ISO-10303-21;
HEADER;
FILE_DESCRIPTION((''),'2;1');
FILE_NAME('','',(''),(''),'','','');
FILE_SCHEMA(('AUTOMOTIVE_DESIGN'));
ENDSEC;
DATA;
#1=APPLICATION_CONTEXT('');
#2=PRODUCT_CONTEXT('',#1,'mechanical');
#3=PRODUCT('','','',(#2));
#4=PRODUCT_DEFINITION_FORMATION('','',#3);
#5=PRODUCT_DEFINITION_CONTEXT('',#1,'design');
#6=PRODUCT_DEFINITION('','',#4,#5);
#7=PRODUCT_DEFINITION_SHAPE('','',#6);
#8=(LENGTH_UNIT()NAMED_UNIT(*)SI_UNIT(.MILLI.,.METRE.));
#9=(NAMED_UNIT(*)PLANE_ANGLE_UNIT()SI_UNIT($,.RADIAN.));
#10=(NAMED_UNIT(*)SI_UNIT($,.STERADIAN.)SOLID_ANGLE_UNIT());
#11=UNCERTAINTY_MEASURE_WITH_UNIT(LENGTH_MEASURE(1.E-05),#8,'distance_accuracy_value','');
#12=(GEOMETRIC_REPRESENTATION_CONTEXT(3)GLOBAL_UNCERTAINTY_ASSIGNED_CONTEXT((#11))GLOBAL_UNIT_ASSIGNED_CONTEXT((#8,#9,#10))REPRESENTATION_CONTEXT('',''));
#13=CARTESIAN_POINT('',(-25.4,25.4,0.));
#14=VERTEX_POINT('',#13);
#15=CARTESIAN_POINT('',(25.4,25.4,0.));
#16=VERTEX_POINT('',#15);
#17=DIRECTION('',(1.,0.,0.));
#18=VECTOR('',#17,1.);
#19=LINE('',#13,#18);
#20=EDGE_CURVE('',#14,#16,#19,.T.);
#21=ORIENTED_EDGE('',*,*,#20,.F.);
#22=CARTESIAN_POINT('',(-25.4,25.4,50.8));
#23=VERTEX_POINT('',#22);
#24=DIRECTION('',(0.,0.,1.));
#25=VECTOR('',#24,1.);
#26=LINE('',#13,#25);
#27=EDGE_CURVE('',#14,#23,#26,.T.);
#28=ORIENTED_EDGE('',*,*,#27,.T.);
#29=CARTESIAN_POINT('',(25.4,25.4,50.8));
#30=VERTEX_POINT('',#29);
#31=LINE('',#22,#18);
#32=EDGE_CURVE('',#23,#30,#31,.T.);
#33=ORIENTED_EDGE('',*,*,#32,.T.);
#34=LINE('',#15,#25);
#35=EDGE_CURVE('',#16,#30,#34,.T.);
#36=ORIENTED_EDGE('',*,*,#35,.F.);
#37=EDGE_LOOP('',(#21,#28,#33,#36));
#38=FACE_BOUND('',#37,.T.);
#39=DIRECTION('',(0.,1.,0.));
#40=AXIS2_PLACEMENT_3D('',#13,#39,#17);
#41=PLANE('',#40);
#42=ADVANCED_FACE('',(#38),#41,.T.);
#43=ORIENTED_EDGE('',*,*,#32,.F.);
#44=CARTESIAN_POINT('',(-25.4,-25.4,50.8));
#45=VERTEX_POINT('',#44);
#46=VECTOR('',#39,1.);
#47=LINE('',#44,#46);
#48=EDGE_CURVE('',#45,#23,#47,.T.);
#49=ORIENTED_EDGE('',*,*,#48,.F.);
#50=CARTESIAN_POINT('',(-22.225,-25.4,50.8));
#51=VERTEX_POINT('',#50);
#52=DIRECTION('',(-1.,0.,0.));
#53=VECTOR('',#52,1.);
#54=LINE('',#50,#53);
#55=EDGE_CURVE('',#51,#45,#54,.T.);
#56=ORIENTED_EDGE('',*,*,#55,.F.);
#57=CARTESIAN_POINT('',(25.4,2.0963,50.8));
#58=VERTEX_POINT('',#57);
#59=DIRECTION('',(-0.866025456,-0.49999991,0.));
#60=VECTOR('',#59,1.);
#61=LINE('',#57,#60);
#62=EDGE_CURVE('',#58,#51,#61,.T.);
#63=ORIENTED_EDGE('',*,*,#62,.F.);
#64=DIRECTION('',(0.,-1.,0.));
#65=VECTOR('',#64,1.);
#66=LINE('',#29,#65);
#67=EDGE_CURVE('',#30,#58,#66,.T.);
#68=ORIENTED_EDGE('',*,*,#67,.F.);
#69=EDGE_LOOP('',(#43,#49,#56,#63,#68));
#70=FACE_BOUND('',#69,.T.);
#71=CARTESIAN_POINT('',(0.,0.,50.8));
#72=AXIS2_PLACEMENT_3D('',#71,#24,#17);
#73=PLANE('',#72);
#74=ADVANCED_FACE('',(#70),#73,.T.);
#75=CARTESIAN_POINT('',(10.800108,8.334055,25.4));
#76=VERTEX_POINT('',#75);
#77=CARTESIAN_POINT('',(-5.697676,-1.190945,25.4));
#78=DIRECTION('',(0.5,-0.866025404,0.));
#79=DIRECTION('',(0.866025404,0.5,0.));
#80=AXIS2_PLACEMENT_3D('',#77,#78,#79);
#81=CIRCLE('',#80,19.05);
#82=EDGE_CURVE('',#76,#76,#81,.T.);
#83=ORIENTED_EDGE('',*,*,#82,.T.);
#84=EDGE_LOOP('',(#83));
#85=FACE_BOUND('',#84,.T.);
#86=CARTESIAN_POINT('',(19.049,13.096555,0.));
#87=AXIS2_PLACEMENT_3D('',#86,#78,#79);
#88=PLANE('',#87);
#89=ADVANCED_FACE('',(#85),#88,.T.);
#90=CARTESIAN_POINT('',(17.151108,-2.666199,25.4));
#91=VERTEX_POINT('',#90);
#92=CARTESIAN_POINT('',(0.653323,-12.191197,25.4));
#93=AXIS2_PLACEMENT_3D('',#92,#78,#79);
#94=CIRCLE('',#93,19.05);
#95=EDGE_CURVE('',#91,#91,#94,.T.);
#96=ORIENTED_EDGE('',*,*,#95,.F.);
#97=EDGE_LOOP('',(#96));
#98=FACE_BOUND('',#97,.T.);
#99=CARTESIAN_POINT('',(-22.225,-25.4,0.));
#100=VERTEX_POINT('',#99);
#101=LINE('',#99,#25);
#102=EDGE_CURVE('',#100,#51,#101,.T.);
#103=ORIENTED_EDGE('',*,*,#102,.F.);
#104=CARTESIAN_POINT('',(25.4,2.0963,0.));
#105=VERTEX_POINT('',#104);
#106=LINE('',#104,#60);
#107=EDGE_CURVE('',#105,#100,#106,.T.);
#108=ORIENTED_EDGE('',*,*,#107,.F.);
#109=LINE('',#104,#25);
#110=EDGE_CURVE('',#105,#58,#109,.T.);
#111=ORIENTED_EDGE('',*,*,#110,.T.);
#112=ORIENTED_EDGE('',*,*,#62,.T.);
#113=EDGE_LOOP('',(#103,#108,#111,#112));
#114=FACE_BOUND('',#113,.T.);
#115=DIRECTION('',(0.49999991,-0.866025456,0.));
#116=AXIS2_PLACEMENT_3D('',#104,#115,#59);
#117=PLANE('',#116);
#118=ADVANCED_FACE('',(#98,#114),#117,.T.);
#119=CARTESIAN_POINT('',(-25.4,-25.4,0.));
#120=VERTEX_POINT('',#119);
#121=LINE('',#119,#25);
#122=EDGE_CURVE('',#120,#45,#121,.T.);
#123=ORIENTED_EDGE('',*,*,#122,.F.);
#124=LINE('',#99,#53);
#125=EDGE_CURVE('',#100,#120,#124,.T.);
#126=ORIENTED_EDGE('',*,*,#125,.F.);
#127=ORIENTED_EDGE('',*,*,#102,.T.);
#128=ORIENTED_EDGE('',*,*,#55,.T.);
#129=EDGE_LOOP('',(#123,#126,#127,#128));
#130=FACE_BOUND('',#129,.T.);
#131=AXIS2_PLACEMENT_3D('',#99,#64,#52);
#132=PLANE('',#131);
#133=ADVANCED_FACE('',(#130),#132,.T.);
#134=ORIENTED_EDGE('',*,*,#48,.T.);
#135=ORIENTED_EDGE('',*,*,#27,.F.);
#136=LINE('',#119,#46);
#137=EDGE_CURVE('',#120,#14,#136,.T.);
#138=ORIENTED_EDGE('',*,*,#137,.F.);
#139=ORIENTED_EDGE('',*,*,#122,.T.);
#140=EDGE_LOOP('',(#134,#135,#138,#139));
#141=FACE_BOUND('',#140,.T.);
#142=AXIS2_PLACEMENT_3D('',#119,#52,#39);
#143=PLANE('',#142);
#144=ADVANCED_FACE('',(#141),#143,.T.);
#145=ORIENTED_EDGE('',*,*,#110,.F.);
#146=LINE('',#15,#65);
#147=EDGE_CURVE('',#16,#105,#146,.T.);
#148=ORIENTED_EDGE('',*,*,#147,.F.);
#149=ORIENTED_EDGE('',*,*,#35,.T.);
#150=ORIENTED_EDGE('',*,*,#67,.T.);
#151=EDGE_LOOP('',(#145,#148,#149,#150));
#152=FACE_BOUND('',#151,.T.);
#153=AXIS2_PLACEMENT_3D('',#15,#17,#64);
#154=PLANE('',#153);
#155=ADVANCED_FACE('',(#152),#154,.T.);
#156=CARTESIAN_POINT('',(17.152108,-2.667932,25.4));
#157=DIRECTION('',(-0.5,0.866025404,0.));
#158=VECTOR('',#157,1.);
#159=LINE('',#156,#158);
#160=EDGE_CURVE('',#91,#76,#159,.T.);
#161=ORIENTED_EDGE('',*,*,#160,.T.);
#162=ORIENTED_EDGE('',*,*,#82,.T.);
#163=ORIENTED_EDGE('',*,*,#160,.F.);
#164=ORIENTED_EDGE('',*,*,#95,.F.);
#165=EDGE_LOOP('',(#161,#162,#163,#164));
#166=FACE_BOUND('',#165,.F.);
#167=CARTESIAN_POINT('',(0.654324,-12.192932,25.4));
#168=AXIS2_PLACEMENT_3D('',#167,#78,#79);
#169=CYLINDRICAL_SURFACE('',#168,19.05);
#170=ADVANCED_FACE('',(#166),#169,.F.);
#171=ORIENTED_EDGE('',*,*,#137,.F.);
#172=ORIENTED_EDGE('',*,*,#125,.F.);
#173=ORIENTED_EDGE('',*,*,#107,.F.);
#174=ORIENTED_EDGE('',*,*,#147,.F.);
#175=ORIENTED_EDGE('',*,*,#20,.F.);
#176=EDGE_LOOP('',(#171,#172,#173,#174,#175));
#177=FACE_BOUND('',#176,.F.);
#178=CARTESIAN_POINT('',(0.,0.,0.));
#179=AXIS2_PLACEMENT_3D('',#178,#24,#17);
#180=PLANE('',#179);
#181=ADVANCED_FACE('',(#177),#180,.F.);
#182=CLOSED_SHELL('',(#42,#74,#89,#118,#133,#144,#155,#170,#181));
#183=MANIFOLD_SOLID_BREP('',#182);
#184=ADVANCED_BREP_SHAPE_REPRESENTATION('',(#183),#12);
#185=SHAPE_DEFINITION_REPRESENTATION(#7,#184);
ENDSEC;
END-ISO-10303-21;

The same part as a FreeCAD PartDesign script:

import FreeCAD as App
import Part
import Sketcher
from FreeCAD import Vector
Q = App.Units.Quantity


def add_polygon(sketch, points):
    """Adds a closed chain of lines whose ends are joined by coincident constraints."""
    first, n = sketch.GeometryCount, len(points)
    for a, b in zip(points, points[1:] + points[:1]):
        sketch.addGeometry(Part.LineSegment(App.Vector(*a, 0), App.Vector(*b, 0)), False)
    for i in range(n):
        sketch.addConstraint(Sketcher.Constraint("Coincident", first + i, 2, first + (i + 1) % n, 1))

doc = App.newDocument("Part")
body = doc.addObject("PartDesign::Body", "Body")

# Sketch on XY plane
sketch1 = doc.addObject("Sketcher::SketchObject", "Sketch")
body.addObject(sketch1)
sketch1.AttachmentSupport = (doc.XY_Plane, [""])
sketch1.MapMode = "FlatFace"
add_polygon(sketch1, [(25.4, 25.4), (-25.4, 25.4), (-25.4, -25.4), (-22.2, -25.4), (25.4, 2.1)])  # lines 0-4
sketch1.addConstraint(Sketcher.Constraint("Horizontal", 0))
sketch1.addConstraint(Sketcher.Constraint("Vertical", 1))
sketch1.addConstraint(Sketcher.Constraint("Horizontal", 2))
sketch1.addConstraint(Sketcher.Constraint("Vertical", 4))
sketch1.addConstraint(Sketcher.Constraint("Symmetric", 1, 2, 4, 2, -1, 1))
sketch1.addConstraint(Sketcher.Constraint("Equal", 0, 1))
sketch1.addConstraint(Sketcher.Constraint("DistanceX", 0, 2, 0, 1, Q("2 in")))
sketch1.addConstraint(Sketcher.Constraint("Angle", 3, Q("30 deg")))
sketch1.addConstraint(Sketcher.Constraint("DistanceX", 2, 1, 2, 2, Q("0.125 in")))
pad1 = doc.addObject("PartDesign::Pad", "Pad")
body.addObject(pad1)
pad1.Profile = sketch1
pad1.Length = Q("2 in")

# Sketch on an angled plane
sketch2 = doc.addObject("Sketcher::SketchObject", "Sketch001")
body.addObject(sketch2)
sketch2.Placement = App.Placement(Vector(25.4, 2.0963, 0), App.Rotation(Vector(0.866025404, 0.5, 0), Vector(0, 0, 1), Vector(0.5, -0.866025404, 0), "ZXY"))
sketch2.addGeometry(Part.Circle(Vector(-29, 25, 0), Vector(0, 0, 1), 19), False)
sketch2.addConstraint(Sketcher.Constraint("Diameter", 0, Q("1.5 in")))
sketch2.addConstraint(Sketcher.Constraint("DistanceX", 0, 3, -1, 1, Q("1.125 in")))
sketch2.addConstraint(Sketcher.Constraint("DistanceY", -1, 1, 0, 3, Q("1 in")))
pocket1 = doc.addObject("PartDesign::Pocket", "Pocket")
body.addObject(pocket1)
pocket1.Profile = sketch2
pocket1.Length = Q("0.5 in")

doc.recompute()
